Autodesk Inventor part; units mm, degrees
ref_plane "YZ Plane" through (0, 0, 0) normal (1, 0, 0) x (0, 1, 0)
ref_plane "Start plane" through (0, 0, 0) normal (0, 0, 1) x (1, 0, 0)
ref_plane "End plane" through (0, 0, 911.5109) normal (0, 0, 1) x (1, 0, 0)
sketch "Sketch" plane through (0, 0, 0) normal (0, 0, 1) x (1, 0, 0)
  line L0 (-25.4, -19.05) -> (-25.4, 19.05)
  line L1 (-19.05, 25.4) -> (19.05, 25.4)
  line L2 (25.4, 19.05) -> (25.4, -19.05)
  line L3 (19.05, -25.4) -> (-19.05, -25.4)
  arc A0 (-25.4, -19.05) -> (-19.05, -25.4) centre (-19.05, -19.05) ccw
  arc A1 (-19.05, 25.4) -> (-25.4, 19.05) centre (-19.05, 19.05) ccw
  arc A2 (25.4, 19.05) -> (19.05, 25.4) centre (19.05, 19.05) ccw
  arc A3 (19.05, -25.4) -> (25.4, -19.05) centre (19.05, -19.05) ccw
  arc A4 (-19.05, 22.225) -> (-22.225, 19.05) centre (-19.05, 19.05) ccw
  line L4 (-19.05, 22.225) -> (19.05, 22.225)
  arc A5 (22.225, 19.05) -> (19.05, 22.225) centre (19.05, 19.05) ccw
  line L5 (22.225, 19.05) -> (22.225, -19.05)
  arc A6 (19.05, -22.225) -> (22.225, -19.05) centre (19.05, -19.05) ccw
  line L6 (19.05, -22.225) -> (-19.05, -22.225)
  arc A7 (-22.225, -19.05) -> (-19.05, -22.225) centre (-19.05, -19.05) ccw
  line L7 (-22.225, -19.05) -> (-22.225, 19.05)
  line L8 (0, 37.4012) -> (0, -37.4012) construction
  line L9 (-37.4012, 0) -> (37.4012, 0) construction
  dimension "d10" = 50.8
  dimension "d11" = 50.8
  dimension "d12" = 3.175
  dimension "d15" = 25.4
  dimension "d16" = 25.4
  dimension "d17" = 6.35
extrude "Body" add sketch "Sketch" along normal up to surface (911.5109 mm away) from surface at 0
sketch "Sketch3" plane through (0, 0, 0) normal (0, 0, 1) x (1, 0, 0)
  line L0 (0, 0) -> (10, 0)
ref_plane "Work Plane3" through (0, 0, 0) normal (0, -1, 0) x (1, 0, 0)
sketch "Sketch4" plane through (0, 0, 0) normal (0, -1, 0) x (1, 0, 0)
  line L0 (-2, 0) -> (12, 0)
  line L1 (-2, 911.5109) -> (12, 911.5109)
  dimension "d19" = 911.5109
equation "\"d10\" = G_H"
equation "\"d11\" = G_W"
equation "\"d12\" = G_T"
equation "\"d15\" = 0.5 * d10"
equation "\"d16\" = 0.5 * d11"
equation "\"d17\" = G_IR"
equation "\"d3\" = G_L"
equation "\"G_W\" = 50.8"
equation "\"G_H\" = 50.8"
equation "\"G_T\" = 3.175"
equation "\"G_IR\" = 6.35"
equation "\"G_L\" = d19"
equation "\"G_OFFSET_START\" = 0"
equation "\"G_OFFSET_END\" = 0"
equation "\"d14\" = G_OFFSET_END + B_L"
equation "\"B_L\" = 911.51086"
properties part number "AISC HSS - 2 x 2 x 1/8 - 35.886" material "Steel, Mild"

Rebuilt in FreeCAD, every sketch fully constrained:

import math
import FreeCAD as App
import Part
import Sketcher
Q = App.Units.Quantity

doc = App.newDocument("Part")
body = doc.addObject("PartDesign::Body", "Body")

sketch1 = body.newObject("Sketcher::SketchObject", "Sketch")
sketch1.AttachmentSupport = (doc.getObject("XY_Plane"), [""])
sketch1.MapMode = "FlatFace"
sketch1.addGeometry([
    Part.LineSegment(App.Vector(-25.4, 19.1, 0), App.Vector(-25.4, -19.1, 0)),
    Part.ArcOfCircle(Part.Circle(App.Vector(-19.1, -19.1, 0), App.Vector(0, 0, 1), 6.3), math.radians(180), math.radians(270)),
    Part.LineSegment(App.Vector(-19.1, -25.4, 0), App.Vector(19.1, -25.4, 0)),
    Part.ArcOfCircle(Part.Circle(App.Vector(19.1, -19.1, 0), App.Vector(0, 0, 1), 6.3), math.radians(-90), math.radians(0)),
    Part.LineSegment(App.Vector(25.4, -19.1, 0), App.Vector(25.4, 19.1, 0)),
    Part.ArcOfCircle(Part.Circle(App.Vector(19.1, 19.1, 0), App.Vector(0, 0, 1), 6.3), math.radians(0), math.radians(90)),
    Part.LineSegment(App.Vector(19.1, 25.4, 0), App.Vector(-19.1, 25.4, 0)),
    Part.ArcOfCircle(Part.Circle(App.Vector(-19.1, 19.1, 0), App.Vector(0, 0, 1), 6.3), math.radians(90), math.radians(180)),
    Part.ArcOfCircle(Part.Circle(App.Vector(-19.1, 19.1, 0), App.Vector(0, 0, 1), 3.2), math.radians(90), math.radians(180)),
    Part.LineSegment(App.Vector(-19.1, 22.2, 0), App.Vector(19.1, 22.2, 0)),
    Part.ArcOfCircle(Part.Circle(App.Vector(19.1, 19.1, 0), App.Vector(0, 0, 1), 3.2), math.radians(0), math.radians(90)),
    Part.LineSegment(App.Vector(22.2, 19.1, 0), App.Vector(22.2, -19.1, 0)),
    Part.ArcOfCircle(Part.Circle(App.Vector(19.1, -19.1, 0), App.Vector(0, 0, 1), 3.2), math.radians(-90), math.radians(0)),
    Part.LineSegment(App.Vector(19.1, -22.2, 0), App.Vector(-19.1, -22.2, 0)),
    Part.ArcOfCircle(Part.Circle(App.Vector(-19.1, -19.1, 0), App.Vector(0, 0, 1), 3.2), math.radians(180), math.radians(270)),
    Part.LineSegment(App.Vector(-22.2, -19.1, 0), App.Vector(-22.2, 19.1, 0)),
], False)
sketch1.addConstraint([
    Sketcher.Constraint("Tangent", 0, 2, 1, 1),
    Sketcher.Constraint("Tangent", 1, 2, 2, 1),
    Sketcher.Constraint("Tangent", 2, 2, 3, 1),
    Sketcher.Constraint("Tangent", 3, 2, 4, 1),
    Sketcher.Constraint("Tangent", 4, 2, 5, 1),
    Sketcher.Constraint("Tangent", 5, 2, 6, 1),
    Sketcher.Constraint("Tangent", 6, 2, 7, 1),
    Sketcher.Constraint("Tangent", 7, 2, 0, 1),
    Sketcher.Constraint("Tangent", 8, 1, 9, 1),
    Sketcher.Constraint("Tangent", 9, 2, 10, 2),
    Sketcher.Constraint("Tangent", 10, 1, 11, 1),
    Sketcher.Constraint("Tangent", 11, 2, 12, 2),
    Sketcher.Constraint("Tangent", 12, 1, 13, 1),
    Sketcher.Constraint("Tangent", 13, 2, 14, 2),
    Sketcher.Constraint("Tangent", 14, 1, 15, 1),
    Sketcher.Constraint("Tangent", 15, 2, 8, 2),
    Sketcher.Constraint("Vertical", 0),
    Sketcher.Constraint("Horizontal", 2),
    Sketcher.Constraint("Vertical", 4),
    Sketcher.Constraint("Horizontal", 6),
    Sketcher.Constraint("Horizontal", 9),
    Sketcher.Constraint("Vertical", 11),
    Sketcher.Constraint("Horizontal", 13),
    Sketcher.Constraint("Vertical", 15),
    Sketcher.Constraint("Coincident", 8, 3, 7, 3),
    Sketcher.Constraint("Coincident", 10, 3, 5, 3),
    Sketcher.Constraint("Coincident", 12, 3, 3, 3),
    Sketcher.Constraint("Equal", 1, 3),
    Sketcher.Constraint("Equal", 3, 5),
    Sketcher.Constraint("Equal", 5, 7),
    Sketcher.Constraint("Equal", 12, 14),
    Sketcher.Constraint("Symmetric", 1, 3, 5, 3, -1, 1),
    Sketcher.Constraint("Equal", 13, 0),
    Sketcher.Constraint("Radius", 1, Q("0.25 in")),
    Sketcher.Constraint("DistanceX", 0, 2, -1, 1, Q("1 in")),
    Sketcher.Constraint("Radius", 8, Q("0.125 in")),
])
pad1 = body.newObject("PartDesign::Pad", "Pad")
pad1.Profile = sketch1
pad1.Length = 911.5109

doc.recompute()
